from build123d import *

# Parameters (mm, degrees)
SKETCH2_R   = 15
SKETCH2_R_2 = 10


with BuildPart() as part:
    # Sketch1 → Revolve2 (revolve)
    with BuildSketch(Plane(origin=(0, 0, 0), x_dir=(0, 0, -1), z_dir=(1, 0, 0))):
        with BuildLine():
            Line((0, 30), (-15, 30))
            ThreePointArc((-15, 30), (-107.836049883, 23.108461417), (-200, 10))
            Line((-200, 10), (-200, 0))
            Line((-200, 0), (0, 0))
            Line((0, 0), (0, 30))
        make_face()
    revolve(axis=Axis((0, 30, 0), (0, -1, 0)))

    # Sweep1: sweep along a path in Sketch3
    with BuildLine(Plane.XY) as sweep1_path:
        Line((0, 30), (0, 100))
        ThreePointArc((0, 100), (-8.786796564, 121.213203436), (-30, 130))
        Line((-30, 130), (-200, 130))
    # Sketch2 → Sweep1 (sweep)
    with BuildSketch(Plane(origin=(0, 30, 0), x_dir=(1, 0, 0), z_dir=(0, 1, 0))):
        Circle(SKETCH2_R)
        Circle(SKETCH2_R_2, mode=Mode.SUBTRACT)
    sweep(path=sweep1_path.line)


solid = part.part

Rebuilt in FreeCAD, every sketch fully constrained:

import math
import FreeCAD as App
import Part
import Sketcher

V = App.Vector
Q = App.Units.Quantity

doc = App.newDocument("Part")
params = doc.addObject("Spreadsheet::Sheet", "Params")
for row, (alias, value) in enumerate([
    ("sketch1_width", "10 mm"),
    ("sketch1_width2", "30 mm"),
    ("sketch1_height", "15 mm"),
    ("sketch1_height2", "200 mm"),
    ("revolution_angle", "360 deg"),
    ("sketch2_diameter", "30 mm"),
    ("sketch2_diameter2", "20 mm"),
    ("sketch3_radius", "30 mm"),
    ("sketch3_width", "170 mm"),
    ("sketch3_height", "70 mm"),
], start=1):
    params.set(f"A{row}", alias)
    params.set(f"B{row}", "=" + value)
    params.setAlias(f"B{row}", alias)

body = doc.addObject("PartDesign::Body", "Body")

sketch1 = doc.addObject("Sketcher::SketchObject", "Sketch")
body.addObject(sketch1)
sketch1.AttachmentSupport = (doc.YZ_Plane, [""])
sketch1.MapMode = "FlatFace"
sketch1.addGeometry(Part.LineSegment(V(30, 0, 0), V(30, 15, 0)), False)
sketch1.addGeometry(Part.ArcOfCircle(Part.Circle(V(-1355, -41, 0), V(0, 0, 1), 1386), math.radians(2.32), math.radians(10.02)), False)
sketch1.addGeometry(Part.LineSegment(V(10, 200, 0), V(0, 200, 0)), False)
sketch1.addGeometry(Part.LineSegment(V(0, 200, 0), V(0, 0, 0)), False)
sketch1.addGeometry(Part.LineSegment(V(0, 0, 0), V(30, 0, 0)), False)
sketch1.addConstraint(Sketcher.Constraint("Coincident", 0, 2, 1, 1))
sketch1.addConstraint(Sketcher.Constraint("Coincident", 1, 2, 2, 1))
sketch1.addConstraint(Sketcher.Constraint("Coincident", 2, 2, 3, 1))
sketch1.addConstraint(Sketcher.Constraint("Coincident", 3, 2, 4, 1))
sketch1.addConstraint(Sketcher.Constraint("Coincident", 4, 2, 0, 1))
sketch1.addConstraint(Sketcher.Constraint("Vertical", 0))
sketch1.addConstraint(Sketcher.Constraint("Horizontal", 2))
sketch1.addConstraint(Sketcher.Constraint("Vertical", 3))
sketch1.addConstraint(Sketcher.Constraint("Horizontal", 4))
sketch1.addConstraint(Sketcher.Constraint("Coincident", 3, 2, -1, 1))
sketch1.addConstraint(Sketcher.Constraint("DistanceX", 2, 2, 2, 1, Q("10 mm")))
sketch1.addConstraint(Sketcher.Constraint("DistanceX", 4, 1, 4, 2, Q("30 mm")))
sketch1.addConstraint(Sketcher.Constraint("DistanceY", 0, 1, 0, 2, Q("15 mm")))
sketch1.addConstraint(Sketcher.Constraint("DistanceY", 3, 2, 3, 1, Q("200 mm")))
sketch1.addConstraint(Sketcher.Constraint("Radius", 1, Q("1385.866259 mm")))
sketch1.setExpression("Constraints[10]", "Params.sketch1_width")
sketch1.setExpression("Constraints[11]", "Params.sketch1_width2")
sketch1.setExpression("Constraints[12]", "Params.sketch1_height")
sketch1.setExpression("Constraints[13]", "Params.sketch1_height2")
revolution = doc.addObject("PartDesign::Revolution", "Revolution")
body.addObject(revolution)
revolution.Profile = sketch1
revolution.ReferenceAxis = (sketch1, ["H_Axis"])
revolution.setExpression("Angle", "Params.revolution_angle")

sketch2 = doc.addObject("Sketcher::SketchObject", "Sketch001")
body.addObject(sketch2)
sketch2.AttachmentSupport = (doc.XZ_Plane, [""])
sketch2.MapMode = "FlatFace"
sketch2.AttachmentOffset = App.Placement(V(0, 0, -30), App.Rotation())
sketch2.addGeometry(Part.Circle(V(0, 0, 0), V(0, 0, 1), 15), False)
sketch2.addGeometry(Part.Circle(V(0, 0, 0), V(0, 0, 1), 10), False)
sketch2.addConstraint(Sketcher.Constraint("Coincident", 0, 3, -1, 1))
sketch2.addConstraint(Sketcher.Constraint("Coincident", 1, 3, -1, 1))
sketch2.addConstraint(Sketcher.Constraint("Diameter", 0, Q("30 mm")))
sketch2.addConstraint(Sketcher.Constraint("Diameter", 1, Q("20 mm")))
sketch2.setExpression("Constraints[2]", "Params.sketch2_diameter")
sketch2.setExpression("Constraints[3]", "Params.sketch2_diameter2")

sketch3 = doc.addObject("Sketcher::SketchObject", "Sketch002")
body.addObject(sketch3)
sketch3.AttachmentSupport = (doc.XY_Plane, [""])
sketch3.MapMode = "FlatFace"
sketch3.addGeometry(Part.LineSegment(V(0, 30, 0), V(0, 100, 0)), False)
sketch3.addGeometry(Part.ArcOfCircle(Part.Circle(V(-30, 100, 0), V(0, 0, 1), 30), math.radians(0), math.radians(90)), False)
sketch3.addGeometry(Part.LineSegment(V(-30, 130, 0), V(-200, 130, 0)), False)
sketch3.addConstraint(Sketcher.Constraint("Tangent", 0, 2, 1, 1))
sketch3.addConstraint(Sketcher.Constraint("Tangent", 1, 2, 2, 1))
sketch3.addConstraint(Sketcher.Constraint("Vertical", 0))
sketch3.addConstraint(Sketcher.Constraint("Horizontal", 2))
sketch3.addConstraint(Sketcher.Constraint("PointOnObject", 0, 1, -2))
sketch3.addConstraint(Sketcher.Constraint("Radius", 1, Q("30 mm")))
sketch3.addConstraint(Sketcher.Constraint("DistanceX", 2, 2, 2, 1, Q("170 mm")))
sketch3.addConstraint(Sketcher.Constraint("DistanceY", 0, 1, 0, 2, Q("70 mm")))
sketch3.addConstraint(Sketcher.Constraint("DistanceY", -1, 1, 1, 3, Q("100 mm")))
sketch3.setExpression("Constraints[5]", "Params.sketch3_radius")
sketch3.setExpression("Constraints[6]", "Params.sketch3_width")
sketch3.setExpression("Constraints[7]", "Params.sketch3_height")
doc.recompute()

additivepipe = doc.addObject("PartDesign::AdditivePipe", "AdditivePipe")
body.addObject(additivepipe)
additivepipe.Profile = sketch2
additivepipe.Spine = (sketch3, ["Edge1", "Edge2", "Edge3"])

doc.recompute()
